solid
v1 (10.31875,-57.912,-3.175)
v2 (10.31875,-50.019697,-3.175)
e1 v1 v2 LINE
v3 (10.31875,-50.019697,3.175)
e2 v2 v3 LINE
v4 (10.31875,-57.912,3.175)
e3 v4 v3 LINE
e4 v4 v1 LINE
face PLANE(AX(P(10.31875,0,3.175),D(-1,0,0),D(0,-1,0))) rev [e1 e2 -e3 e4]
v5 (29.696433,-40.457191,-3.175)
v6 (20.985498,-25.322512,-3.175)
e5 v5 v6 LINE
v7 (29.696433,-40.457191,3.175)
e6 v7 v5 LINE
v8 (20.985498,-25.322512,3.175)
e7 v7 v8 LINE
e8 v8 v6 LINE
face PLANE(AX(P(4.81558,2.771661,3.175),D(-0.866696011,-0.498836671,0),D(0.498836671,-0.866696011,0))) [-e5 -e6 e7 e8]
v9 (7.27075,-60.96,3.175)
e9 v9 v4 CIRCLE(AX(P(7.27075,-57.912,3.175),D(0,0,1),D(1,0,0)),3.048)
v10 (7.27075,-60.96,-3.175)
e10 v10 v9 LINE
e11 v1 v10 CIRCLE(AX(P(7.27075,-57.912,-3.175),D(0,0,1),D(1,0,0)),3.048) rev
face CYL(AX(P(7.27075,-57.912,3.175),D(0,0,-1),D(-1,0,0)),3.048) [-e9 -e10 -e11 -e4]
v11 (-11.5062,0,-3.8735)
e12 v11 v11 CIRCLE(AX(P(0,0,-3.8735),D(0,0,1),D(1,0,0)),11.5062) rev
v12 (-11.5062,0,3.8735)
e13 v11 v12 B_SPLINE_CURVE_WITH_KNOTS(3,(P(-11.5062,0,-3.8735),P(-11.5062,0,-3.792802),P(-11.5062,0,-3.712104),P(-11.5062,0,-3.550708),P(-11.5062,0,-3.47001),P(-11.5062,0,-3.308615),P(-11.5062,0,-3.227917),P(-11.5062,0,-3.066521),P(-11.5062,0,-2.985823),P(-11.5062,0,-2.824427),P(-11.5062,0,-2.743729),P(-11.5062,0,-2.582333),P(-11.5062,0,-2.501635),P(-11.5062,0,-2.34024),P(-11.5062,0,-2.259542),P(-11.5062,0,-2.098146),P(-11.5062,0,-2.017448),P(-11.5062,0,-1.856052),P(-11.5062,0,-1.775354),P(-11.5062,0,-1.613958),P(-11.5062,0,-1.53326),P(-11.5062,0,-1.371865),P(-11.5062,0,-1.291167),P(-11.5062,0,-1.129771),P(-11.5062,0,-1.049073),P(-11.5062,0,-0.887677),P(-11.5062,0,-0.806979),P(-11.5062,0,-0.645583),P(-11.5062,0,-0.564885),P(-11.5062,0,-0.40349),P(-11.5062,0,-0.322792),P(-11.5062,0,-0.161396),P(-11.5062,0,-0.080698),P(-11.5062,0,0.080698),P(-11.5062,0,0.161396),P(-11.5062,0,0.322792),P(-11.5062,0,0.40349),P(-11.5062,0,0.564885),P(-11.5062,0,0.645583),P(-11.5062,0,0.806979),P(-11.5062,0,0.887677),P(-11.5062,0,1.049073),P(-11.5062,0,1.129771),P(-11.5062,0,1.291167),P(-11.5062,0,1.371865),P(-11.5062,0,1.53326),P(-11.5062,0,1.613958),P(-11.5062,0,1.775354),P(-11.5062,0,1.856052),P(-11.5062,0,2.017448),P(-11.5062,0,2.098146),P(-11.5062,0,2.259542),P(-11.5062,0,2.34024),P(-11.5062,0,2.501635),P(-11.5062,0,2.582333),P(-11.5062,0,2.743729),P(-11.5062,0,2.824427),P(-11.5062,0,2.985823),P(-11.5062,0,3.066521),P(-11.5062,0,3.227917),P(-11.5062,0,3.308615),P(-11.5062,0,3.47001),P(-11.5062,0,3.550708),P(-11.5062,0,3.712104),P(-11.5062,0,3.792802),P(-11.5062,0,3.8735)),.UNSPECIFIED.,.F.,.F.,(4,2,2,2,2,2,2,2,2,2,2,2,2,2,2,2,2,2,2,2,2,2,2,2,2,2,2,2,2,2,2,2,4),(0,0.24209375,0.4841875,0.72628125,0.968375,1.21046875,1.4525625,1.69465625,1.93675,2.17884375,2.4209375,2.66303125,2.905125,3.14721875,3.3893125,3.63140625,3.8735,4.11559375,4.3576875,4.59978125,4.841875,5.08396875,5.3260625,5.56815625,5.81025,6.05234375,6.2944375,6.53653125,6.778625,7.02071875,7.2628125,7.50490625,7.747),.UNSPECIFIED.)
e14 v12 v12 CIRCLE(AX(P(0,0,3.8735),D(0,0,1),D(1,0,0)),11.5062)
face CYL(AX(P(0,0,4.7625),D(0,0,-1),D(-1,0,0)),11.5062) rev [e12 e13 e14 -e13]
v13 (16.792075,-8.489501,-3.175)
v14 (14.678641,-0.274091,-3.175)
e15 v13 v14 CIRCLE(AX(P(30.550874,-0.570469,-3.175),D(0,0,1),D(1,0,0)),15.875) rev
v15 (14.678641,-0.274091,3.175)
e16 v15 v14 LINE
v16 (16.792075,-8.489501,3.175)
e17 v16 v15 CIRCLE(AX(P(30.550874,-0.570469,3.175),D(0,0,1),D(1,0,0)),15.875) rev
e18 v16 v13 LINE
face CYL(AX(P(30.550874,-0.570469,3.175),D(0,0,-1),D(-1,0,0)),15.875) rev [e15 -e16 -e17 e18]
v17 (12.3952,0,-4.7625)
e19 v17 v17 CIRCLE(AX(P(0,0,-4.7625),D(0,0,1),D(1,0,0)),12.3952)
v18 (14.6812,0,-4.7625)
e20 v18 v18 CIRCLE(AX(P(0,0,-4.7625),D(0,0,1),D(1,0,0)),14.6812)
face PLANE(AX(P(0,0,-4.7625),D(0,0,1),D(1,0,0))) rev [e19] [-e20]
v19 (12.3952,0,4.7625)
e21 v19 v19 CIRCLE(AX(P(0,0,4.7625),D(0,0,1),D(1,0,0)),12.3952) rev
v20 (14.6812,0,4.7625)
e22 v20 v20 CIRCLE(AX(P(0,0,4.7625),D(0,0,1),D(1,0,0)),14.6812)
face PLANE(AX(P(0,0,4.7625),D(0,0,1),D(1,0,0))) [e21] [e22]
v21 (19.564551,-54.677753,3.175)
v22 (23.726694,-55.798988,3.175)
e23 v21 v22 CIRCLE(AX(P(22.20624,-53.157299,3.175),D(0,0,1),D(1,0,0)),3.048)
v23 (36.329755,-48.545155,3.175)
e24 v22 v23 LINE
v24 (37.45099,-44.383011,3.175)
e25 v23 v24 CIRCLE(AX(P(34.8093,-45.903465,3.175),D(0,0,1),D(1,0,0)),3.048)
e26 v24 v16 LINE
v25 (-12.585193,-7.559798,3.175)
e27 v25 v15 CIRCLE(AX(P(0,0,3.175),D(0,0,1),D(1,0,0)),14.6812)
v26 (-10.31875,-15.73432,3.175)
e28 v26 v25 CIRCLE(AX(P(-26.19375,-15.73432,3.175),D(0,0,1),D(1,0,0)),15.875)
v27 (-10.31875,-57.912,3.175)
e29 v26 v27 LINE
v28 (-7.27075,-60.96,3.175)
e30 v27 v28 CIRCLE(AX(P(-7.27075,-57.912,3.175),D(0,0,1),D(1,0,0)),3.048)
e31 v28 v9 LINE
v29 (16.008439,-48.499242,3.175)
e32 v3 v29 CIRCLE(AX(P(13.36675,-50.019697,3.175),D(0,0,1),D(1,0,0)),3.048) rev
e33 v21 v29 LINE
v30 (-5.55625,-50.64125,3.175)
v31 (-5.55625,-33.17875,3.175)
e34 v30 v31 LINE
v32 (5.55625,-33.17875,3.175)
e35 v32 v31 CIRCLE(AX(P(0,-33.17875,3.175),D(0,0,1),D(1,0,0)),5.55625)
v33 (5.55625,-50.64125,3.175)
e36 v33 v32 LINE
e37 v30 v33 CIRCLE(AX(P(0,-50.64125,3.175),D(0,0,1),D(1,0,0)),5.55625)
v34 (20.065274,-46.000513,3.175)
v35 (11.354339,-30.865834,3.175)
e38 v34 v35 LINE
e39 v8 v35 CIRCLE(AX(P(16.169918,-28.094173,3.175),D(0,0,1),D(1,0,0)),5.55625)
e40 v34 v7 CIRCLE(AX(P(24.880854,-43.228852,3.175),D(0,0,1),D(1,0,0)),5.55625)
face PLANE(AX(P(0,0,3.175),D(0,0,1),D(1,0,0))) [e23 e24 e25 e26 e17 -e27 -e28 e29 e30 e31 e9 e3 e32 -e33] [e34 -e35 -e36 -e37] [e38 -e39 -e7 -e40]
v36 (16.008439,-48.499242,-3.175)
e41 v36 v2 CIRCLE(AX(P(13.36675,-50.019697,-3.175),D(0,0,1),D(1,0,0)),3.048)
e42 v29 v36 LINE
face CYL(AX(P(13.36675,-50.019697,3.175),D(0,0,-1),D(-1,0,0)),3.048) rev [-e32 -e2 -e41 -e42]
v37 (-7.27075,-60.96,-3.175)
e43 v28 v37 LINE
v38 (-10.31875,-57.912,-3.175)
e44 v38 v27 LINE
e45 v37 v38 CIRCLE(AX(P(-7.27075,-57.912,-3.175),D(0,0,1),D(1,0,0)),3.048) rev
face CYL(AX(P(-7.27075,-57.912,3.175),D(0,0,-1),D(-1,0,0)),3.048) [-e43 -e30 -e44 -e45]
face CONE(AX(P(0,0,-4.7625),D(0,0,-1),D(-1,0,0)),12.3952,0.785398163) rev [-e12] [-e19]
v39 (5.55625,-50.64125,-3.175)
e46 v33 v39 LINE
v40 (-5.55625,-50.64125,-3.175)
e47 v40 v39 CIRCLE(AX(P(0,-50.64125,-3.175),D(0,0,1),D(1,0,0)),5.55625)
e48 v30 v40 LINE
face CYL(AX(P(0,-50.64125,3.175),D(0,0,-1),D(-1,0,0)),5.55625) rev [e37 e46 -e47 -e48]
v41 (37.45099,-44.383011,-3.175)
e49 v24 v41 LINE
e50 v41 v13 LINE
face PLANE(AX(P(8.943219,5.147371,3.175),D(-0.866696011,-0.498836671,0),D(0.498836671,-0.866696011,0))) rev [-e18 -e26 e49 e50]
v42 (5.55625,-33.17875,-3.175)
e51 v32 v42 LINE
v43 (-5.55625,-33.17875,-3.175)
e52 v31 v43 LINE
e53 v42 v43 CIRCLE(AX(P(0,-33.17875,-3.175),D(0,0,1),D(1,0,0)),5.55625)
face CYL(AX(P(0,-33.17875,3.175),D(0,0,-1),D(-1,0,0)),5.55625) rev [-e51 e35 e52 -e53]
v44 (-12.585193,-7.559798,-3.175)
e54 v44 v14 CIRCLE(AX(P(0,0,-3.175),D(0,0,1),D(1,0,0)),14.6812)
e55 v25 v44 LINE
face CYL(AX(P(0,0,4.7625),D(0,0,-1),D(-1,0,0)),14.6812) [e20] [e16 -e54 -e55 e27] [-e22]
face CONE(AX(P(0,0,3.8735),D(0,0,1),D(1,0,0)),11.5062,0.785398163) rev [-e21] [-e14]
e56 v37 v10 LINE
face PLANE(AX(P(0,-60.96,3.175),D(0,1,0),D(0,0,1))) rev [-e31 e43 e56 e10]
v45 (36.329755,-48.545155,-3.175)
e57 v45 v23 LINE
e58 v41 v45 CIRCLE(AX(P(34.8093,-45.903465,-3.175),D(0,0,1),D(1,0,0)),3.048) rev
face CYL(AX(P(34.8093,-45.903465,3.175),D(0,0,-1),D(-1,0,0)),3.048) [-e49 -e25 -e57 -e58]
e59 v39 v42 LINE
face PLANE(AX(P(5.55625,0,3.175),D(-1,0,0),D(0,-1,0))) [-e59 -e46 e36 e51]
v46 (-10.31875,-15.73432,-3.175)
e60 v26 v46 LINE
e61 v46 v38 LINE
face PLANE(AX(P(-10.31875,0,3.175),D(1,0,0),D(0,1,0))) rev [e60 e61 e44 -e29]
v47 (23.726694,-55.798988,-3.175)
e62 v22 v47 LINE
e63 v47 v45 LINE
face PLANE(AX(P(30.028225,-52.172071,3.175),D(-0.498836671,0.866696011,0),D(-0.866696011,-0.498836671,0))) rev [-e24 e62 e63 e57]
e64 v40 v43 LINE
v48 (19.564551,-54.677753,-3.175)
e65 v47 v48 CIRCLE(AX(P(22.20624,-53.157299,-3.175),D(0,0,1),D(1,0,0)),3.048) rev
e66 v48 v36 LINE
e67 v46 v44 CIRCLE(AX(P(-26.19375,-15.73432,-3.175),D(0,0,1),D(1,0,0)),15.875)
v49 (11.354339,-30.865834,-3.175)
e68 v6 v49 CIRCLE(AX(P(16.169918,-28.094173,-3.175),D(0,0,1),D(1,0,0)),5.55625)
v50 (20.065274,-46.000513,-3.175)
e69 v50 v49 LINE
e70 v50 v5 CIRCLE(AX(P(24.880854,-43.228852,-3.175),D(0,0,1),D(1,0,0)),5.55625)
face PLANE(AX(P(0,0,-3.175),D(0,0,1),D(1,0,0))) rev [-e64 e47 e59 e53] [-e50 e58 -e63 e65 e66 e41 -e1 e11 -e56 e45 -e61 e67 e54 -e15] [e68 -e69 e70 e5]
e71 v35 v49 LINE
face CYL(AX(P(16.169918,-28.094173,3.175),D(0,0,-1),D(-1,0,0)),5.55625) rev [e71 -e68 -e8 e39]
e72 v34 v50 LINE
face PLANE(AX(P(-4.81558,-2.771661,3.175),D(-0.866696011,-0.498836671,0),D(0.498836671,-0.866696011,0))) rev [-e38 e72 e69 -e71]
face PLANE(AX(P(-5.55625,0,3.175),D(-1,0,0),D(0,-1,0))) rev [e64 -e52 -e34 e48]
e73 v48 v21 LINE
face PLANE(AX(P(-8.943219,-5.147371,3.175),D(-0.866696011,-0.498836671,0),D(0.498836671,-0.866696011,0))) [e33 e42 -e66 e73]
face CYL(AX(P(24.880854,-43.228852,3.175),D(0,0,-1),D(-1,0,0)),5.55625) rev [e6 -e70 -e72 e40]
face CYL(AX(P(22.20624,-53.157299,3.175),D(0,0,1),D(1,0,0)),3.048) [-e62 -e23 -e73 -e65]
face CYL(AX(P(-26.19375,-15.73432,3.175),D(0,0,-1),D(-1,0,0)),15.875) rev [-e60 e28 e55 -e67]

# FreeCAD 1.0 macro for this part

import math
import FreeCAD as App
import Part
import Sketcher
from FreeCAD import Vector
Q = App.Units.Quantity


def edges_at(feature, points):
    """Names of the edges that pass closest to the given points."""
    edges = feature.Shape.Edges
    near = lambda p: min(range(len(edges)), key=lambda i: edges[i].distToShape(Part.Vertex(*p))[0])
    return sorted({f"Edge{near(p) + 1}" for p in points})

doc = App.newDocument("Part")
body = doc.addObject("PartDesign::Body", "Body")

# Sketch on XY plane
sketch1 = body.newObject("Sketcher::SketchObject", "Sketch")
sketch1.AttachmentSupport = (doc.getObject("XY_Plane"), [""])
sketch1.MapMode = "FlatFace"
sketch1.addGeometry(Part.ArcOfCircle(Part.Circle(Vector(0, 0, 0), Vector(0, 0, 1), 14.6812), math.radians(-1.069746), math.radians(210.992811)), False)
sketch1.addGeometry(Part.ArcOfCircle(Part.Circle(Vector(0, 0, 0), Vector(0, 0, 1), 14.6812), math.radians(-149.007189), math.radians(-1.069746)), False)
sketch1.addGeometry(Part.Circle(Vector(0, 0, 0), Vector(0, 0, 1), 11.5062), False)
sketch1.addConstraint(Sketcher.Constraint("Tangent", 0, 1, 1, 2))
sketch1.addConstraint(Sketcher.Constraint("Coincident", 1, 1, 0, 2))
sketch1.addConstraint(Sketcher.Constraint("Coincident", 0, 3, -1, 1))
sketch1.addConstraint(Sketcher.Constraint("Coincident", 2, 3, -1, 1))
sketch1.addConstraint(Sketcher.Constraint("Diameter", 2, Q("0.906 in")))
sketch1.addConstraint(Sketcher.Constraint("Radius", 0, Q("0.578 in")))
sketch1.addConstraint(Sketcher.Constraint("DistanceX", -1, 1, 0, 1, Q("14.678641 mm")))
sketch1.addConstraint(Sketcher.Constraint("DistanceX", 1, 1, -1, 1, Q("12.585193 mm")))
pad1 = body.newObject("PartDesign::Pad", "Pad")
pad1.Profile = sketch1
pad1.Length = Q("0.375 in")
pad1.Midplane = True

# Sketch on XY plane
sketch2 = body.newObject("Sketcher::SketchObject", "Sketch001")
sketch2.AttachmentSupport = (doc.getObject("XY_Plane"), [""])
sketch2.MapMode = "FlatFace"
sketch2.addGeometry(Part.ArcOfCircle(Part.Circle(Vector(-26.19375, -15.73432, 0), Vector(0, 0, 1), 15.875), math.radians(0), math.radians(30.992811)), False)
sketch2.addGeometry(Part.LineSegment(Vector(-10.31875, -15.73432, 0), Vector(-10.31875, -60.96, 0)), False)
sketch2.addGeometry(Part.LineSegment(Vector(-10.31875, -60.96, 0), Vector(10.31875, -60.96, 0)), False)
sketch2.addGeometry(Part.LineSegment(Vector(10.31875, -60.96, 0), Vector(10.31875, -38.61378, 0)), False)
sketch2.addGeometry(Part.LineSegment(Vector(10.31875, -38.61378, 0), Vector(21.085005, -57.319442, 0)), False)
sketch2.addGeometry(Part.LineSegment(Vector(21.085005, -57.319442, 0), Vector(38.971444, -47.024701, 0)), False)
sketch2.addGeometry(Part.LineSegment(Vector(38.971444, -47.024701, 0), Vector(16.792075, -8.489501, 0)), False)
sketch2.addGeometry(Part.ArcOfCircle(Part.Circle(Vector(30.550874, -0.570469, 0), Vector(0, 0, 1), 15.875), math.radians(178.930254), math.radians(209.923065)), False)
sketch2.addGeometry(Part.ArcOfCircle(Part.Circle(Vector(0, 0, 0), Vector(0, 0, 1), 14.6812), math.radians(-149.007189), math.radians(-1.069746)), False)
sketch2.addGeometry(Part.LineSegment(Vector(5.55625, -33.17875, 0), Vector(5.55625, -50.64125, 0)), False)
sketch2.addGeometry(Part.ArcOfCircle(Part.Circle(Vector(0, -50.64125, 0), Vector(0, 0, 1), 5.55625), math.radians(180), math.radians(360)), False)
sketch2.addGeometry(Part.LineSegment(Vector(-5.55625, -50.64125, 0), Vector(-5.55625, -33.17875, 0)), False)
sketch2.addGeometry(Part.ArcOfCircle(Part.Circle(Vector(0, -33.17875, 0), Vector(0, 0, 1), 5.55625), math.radians(0), math.radians(180)), False)
sketch2.addGeometry(Part.LineSegment(Vector(20.985498, -25.322512, 0), Vector(29.696433, -40.457191, 0)), False)
sketch2.addGeometry(Part.ArcOfCircle(Part.Circle(Vector(24.880854, -43.228852, 0), Vector(0, 0, 1), 5.55625), math.radians(-150.076935), math.radians(29.923065)), False)
sketch2.addGeometry(Part.LineSegment(Vector(20.065274, -46.000513, 0), Vector(11.354339, -30.865834, 0)), False)
sketch2.addGeometry(Part.ArcOfCircle(Part.Circle(Vector(16.169918, -28.094173, 0), Vector(0, 0, 1), 5.55625), math.radians(29.923065), math.radians(209.923065)), False)
sketch2.addConstraint(Sketcher.Constraint("Tangent", 0, 1, 1, 1))
sketch2.addConstraint(Sketcher.Constraint("Coincident", 1, 2, 2, 1))
sketch2.addConstraint(Sketcher.Constraint("Coincident", 2, 2, 3, 1))
sketch2.addConstraint(Sketcher.Constraint("Coincident", 3, 2, 4, 1))
sketch2.addConstraint(Sketcher.Constraint("Coincident", 4, 2, 5, 1))
sketch2.addConstraint(Sketcher.Constraint("Coincident", 5, 2, 6, 1))
sketch2.addConstraint(Sketcher.Constraint("Tangent", 6, 2, 7, 2))
sketch2.addConstraint(Sketcher.Constraint("Tangent", 7, 1, 8, 2))
sketch2.addConstraint(Sketcher.Constraint("Tangent", 8, 1, 0, 2))
sketch2.addConstraint(Sketcher.Constraint("Tangent", 9, 2, 10, 2))
sketch2.addConstraint(Sketcher.Constraint("Tangent", 10, 1, 11, 1))
sketch2.addConstraint(Sketcher.Constraint("Tangent", 11, 2, 12, 2))
sketch2.addConstraint(Sketcher.Constraint("Tangent", 12, 1, 9, 1))
sketch2.addConstraint(Sketcher.Constraint("Tangent", 13, 2, 14, 2))
sketch2.addConstraint(Sketcher.Constraint("Tangent", 14, 1, 15, 1))
sketch2.addConstraint(Sketcher.Constraint("Tangent", 15, 2, 16, 2))
sketch2.addConstraint(Sketcher.Constraint("Tangent", 16, 1, 13, 1))
sketch2.addConstraint(Sketcher.Constraint("Vertical", 1))
sketch2.addConstraint(Sketcher.Constraint("Horizontal", 2))
sketch2.addConstraint(Sketcher.Constraint("Vertical", 3))
sketch2.addConstraint(Sketcher.Constraint("Vertical", 9))
sketch2.addConstraint(Sketcher.Constraint("Vertical", 11))
sketch2.addConstraint(Sketcher.Constraint("Coincident", 8, 3, -1, 1))
sketch2.addConstraint(Sketcher.Constraint("Equal", 0, 7))
sketch2.addConstraint(Sketcher.Constraint("Equal", 12, 14))
sketch2.addConstraint(Sketcher.Constraint("Equal", 14, 16))
sketch2.addConstraint(Sketcher.Constraint("PointOnObject", 10, 3, -2))
sketch2.addConstraint(Sketcher.Constraint("Perpendicular", 4, 5))
sketch2.addConstraint(Sketcher.Constraint("Perpendicular", 5, 6))
sketch2.addConstraint(Sketcher.Constraint("Parallel", 6, 13))
sketch2.addConstraint(Sketcher.Constraint("Radius", 0, Q("0.625 in")))
sketch2.addConstraint(Sketcher.Constraint("Radius", 8, Q("0.578 in")))
sketch2.addConstraint(Sketcher.Constraint("Radius", 10, Q("0.21875 in")))
sketch2.addConstraint(Sketcher.Constraint("DistanceY", 1, 2, -1, 1, Q("2.4 in")))
sketch2.addConstraint(Sketcher.Constraint("DistanceX", 2, 1, 2, 2, Q("0.8125 in")))
sketch2.addConstraint(Sketcher.Constraint("DistanceY", 9, 2, 9, 1, Q("0.6875 in")))
sketch2.addConstraint(Sketcher.Constraint("Distance", 5, Q("0.8125 in")))
sketch2.addConstraint(Sketcher.Constraint("Distance", 13, Q("0.6875 in")))
sketch2.addConstraint(Sketcher.Constraint("DistanceX", 0, 3, -1, 1, Q("1.03125 in")))
sketch2.addConstraint(Sketcher.Constraint("DistanceY", 1, 2, 10, 3, Q("0.40625 in")))
sketch2.addConstraint(Sketcher.Constraint("DistanceY", 3, 1, 3, 2, Q("22.34622 mm")))
sketch2.addConstraint(Sketcher.Constraint("DistanceY", 5, 2, -1, 1, Q("47.024701 mm")))
sketch2.addConstraint(Sketcher.Constraint("DistanceY", 6, 2, -1, 1, Q("8.489501 mm")))
sketch2.addConstraint(Sketcher.Constraint("DistanceY", 10, 3, 14, 3, Q("7.412398 mm")))
sketch2.addConstraint(Sketcher.Constraint("DistanceX", -1, 1, 16, 3, Q("16.169918 mm")))
pad2 = body.newObject("PartDesign::Pad", "Pad001")
pad2.Profile = sketch2
pad2.Length = Q("0.25 in")
pad2.Midplane = True
doc.recompute()

fillet = body.newObject("PartDesign::Fillet", "Fillet")
fillet.Base = (pad2, edges_at(pad2, [
    (-10.319, -60.96, 0),
    (10.319, -60.96, 0),
    (10.319, -38.614, 0),
    (21.085, -57.319, 0),
    (38.971, -47.025, 0),
]))
fillet.Radius = Q("0.12 in")
doc.recompute()

chamfer = body.newObject("PartDesign::Chamfer", "Chamfer")
chamfer.Base = (fillet, edges_at(fillet, [(11.506, 0, -4.763), (11.506, 0, 4.763)]))
chamfer.Size = Q("0.035 in")

doc.recompute()
